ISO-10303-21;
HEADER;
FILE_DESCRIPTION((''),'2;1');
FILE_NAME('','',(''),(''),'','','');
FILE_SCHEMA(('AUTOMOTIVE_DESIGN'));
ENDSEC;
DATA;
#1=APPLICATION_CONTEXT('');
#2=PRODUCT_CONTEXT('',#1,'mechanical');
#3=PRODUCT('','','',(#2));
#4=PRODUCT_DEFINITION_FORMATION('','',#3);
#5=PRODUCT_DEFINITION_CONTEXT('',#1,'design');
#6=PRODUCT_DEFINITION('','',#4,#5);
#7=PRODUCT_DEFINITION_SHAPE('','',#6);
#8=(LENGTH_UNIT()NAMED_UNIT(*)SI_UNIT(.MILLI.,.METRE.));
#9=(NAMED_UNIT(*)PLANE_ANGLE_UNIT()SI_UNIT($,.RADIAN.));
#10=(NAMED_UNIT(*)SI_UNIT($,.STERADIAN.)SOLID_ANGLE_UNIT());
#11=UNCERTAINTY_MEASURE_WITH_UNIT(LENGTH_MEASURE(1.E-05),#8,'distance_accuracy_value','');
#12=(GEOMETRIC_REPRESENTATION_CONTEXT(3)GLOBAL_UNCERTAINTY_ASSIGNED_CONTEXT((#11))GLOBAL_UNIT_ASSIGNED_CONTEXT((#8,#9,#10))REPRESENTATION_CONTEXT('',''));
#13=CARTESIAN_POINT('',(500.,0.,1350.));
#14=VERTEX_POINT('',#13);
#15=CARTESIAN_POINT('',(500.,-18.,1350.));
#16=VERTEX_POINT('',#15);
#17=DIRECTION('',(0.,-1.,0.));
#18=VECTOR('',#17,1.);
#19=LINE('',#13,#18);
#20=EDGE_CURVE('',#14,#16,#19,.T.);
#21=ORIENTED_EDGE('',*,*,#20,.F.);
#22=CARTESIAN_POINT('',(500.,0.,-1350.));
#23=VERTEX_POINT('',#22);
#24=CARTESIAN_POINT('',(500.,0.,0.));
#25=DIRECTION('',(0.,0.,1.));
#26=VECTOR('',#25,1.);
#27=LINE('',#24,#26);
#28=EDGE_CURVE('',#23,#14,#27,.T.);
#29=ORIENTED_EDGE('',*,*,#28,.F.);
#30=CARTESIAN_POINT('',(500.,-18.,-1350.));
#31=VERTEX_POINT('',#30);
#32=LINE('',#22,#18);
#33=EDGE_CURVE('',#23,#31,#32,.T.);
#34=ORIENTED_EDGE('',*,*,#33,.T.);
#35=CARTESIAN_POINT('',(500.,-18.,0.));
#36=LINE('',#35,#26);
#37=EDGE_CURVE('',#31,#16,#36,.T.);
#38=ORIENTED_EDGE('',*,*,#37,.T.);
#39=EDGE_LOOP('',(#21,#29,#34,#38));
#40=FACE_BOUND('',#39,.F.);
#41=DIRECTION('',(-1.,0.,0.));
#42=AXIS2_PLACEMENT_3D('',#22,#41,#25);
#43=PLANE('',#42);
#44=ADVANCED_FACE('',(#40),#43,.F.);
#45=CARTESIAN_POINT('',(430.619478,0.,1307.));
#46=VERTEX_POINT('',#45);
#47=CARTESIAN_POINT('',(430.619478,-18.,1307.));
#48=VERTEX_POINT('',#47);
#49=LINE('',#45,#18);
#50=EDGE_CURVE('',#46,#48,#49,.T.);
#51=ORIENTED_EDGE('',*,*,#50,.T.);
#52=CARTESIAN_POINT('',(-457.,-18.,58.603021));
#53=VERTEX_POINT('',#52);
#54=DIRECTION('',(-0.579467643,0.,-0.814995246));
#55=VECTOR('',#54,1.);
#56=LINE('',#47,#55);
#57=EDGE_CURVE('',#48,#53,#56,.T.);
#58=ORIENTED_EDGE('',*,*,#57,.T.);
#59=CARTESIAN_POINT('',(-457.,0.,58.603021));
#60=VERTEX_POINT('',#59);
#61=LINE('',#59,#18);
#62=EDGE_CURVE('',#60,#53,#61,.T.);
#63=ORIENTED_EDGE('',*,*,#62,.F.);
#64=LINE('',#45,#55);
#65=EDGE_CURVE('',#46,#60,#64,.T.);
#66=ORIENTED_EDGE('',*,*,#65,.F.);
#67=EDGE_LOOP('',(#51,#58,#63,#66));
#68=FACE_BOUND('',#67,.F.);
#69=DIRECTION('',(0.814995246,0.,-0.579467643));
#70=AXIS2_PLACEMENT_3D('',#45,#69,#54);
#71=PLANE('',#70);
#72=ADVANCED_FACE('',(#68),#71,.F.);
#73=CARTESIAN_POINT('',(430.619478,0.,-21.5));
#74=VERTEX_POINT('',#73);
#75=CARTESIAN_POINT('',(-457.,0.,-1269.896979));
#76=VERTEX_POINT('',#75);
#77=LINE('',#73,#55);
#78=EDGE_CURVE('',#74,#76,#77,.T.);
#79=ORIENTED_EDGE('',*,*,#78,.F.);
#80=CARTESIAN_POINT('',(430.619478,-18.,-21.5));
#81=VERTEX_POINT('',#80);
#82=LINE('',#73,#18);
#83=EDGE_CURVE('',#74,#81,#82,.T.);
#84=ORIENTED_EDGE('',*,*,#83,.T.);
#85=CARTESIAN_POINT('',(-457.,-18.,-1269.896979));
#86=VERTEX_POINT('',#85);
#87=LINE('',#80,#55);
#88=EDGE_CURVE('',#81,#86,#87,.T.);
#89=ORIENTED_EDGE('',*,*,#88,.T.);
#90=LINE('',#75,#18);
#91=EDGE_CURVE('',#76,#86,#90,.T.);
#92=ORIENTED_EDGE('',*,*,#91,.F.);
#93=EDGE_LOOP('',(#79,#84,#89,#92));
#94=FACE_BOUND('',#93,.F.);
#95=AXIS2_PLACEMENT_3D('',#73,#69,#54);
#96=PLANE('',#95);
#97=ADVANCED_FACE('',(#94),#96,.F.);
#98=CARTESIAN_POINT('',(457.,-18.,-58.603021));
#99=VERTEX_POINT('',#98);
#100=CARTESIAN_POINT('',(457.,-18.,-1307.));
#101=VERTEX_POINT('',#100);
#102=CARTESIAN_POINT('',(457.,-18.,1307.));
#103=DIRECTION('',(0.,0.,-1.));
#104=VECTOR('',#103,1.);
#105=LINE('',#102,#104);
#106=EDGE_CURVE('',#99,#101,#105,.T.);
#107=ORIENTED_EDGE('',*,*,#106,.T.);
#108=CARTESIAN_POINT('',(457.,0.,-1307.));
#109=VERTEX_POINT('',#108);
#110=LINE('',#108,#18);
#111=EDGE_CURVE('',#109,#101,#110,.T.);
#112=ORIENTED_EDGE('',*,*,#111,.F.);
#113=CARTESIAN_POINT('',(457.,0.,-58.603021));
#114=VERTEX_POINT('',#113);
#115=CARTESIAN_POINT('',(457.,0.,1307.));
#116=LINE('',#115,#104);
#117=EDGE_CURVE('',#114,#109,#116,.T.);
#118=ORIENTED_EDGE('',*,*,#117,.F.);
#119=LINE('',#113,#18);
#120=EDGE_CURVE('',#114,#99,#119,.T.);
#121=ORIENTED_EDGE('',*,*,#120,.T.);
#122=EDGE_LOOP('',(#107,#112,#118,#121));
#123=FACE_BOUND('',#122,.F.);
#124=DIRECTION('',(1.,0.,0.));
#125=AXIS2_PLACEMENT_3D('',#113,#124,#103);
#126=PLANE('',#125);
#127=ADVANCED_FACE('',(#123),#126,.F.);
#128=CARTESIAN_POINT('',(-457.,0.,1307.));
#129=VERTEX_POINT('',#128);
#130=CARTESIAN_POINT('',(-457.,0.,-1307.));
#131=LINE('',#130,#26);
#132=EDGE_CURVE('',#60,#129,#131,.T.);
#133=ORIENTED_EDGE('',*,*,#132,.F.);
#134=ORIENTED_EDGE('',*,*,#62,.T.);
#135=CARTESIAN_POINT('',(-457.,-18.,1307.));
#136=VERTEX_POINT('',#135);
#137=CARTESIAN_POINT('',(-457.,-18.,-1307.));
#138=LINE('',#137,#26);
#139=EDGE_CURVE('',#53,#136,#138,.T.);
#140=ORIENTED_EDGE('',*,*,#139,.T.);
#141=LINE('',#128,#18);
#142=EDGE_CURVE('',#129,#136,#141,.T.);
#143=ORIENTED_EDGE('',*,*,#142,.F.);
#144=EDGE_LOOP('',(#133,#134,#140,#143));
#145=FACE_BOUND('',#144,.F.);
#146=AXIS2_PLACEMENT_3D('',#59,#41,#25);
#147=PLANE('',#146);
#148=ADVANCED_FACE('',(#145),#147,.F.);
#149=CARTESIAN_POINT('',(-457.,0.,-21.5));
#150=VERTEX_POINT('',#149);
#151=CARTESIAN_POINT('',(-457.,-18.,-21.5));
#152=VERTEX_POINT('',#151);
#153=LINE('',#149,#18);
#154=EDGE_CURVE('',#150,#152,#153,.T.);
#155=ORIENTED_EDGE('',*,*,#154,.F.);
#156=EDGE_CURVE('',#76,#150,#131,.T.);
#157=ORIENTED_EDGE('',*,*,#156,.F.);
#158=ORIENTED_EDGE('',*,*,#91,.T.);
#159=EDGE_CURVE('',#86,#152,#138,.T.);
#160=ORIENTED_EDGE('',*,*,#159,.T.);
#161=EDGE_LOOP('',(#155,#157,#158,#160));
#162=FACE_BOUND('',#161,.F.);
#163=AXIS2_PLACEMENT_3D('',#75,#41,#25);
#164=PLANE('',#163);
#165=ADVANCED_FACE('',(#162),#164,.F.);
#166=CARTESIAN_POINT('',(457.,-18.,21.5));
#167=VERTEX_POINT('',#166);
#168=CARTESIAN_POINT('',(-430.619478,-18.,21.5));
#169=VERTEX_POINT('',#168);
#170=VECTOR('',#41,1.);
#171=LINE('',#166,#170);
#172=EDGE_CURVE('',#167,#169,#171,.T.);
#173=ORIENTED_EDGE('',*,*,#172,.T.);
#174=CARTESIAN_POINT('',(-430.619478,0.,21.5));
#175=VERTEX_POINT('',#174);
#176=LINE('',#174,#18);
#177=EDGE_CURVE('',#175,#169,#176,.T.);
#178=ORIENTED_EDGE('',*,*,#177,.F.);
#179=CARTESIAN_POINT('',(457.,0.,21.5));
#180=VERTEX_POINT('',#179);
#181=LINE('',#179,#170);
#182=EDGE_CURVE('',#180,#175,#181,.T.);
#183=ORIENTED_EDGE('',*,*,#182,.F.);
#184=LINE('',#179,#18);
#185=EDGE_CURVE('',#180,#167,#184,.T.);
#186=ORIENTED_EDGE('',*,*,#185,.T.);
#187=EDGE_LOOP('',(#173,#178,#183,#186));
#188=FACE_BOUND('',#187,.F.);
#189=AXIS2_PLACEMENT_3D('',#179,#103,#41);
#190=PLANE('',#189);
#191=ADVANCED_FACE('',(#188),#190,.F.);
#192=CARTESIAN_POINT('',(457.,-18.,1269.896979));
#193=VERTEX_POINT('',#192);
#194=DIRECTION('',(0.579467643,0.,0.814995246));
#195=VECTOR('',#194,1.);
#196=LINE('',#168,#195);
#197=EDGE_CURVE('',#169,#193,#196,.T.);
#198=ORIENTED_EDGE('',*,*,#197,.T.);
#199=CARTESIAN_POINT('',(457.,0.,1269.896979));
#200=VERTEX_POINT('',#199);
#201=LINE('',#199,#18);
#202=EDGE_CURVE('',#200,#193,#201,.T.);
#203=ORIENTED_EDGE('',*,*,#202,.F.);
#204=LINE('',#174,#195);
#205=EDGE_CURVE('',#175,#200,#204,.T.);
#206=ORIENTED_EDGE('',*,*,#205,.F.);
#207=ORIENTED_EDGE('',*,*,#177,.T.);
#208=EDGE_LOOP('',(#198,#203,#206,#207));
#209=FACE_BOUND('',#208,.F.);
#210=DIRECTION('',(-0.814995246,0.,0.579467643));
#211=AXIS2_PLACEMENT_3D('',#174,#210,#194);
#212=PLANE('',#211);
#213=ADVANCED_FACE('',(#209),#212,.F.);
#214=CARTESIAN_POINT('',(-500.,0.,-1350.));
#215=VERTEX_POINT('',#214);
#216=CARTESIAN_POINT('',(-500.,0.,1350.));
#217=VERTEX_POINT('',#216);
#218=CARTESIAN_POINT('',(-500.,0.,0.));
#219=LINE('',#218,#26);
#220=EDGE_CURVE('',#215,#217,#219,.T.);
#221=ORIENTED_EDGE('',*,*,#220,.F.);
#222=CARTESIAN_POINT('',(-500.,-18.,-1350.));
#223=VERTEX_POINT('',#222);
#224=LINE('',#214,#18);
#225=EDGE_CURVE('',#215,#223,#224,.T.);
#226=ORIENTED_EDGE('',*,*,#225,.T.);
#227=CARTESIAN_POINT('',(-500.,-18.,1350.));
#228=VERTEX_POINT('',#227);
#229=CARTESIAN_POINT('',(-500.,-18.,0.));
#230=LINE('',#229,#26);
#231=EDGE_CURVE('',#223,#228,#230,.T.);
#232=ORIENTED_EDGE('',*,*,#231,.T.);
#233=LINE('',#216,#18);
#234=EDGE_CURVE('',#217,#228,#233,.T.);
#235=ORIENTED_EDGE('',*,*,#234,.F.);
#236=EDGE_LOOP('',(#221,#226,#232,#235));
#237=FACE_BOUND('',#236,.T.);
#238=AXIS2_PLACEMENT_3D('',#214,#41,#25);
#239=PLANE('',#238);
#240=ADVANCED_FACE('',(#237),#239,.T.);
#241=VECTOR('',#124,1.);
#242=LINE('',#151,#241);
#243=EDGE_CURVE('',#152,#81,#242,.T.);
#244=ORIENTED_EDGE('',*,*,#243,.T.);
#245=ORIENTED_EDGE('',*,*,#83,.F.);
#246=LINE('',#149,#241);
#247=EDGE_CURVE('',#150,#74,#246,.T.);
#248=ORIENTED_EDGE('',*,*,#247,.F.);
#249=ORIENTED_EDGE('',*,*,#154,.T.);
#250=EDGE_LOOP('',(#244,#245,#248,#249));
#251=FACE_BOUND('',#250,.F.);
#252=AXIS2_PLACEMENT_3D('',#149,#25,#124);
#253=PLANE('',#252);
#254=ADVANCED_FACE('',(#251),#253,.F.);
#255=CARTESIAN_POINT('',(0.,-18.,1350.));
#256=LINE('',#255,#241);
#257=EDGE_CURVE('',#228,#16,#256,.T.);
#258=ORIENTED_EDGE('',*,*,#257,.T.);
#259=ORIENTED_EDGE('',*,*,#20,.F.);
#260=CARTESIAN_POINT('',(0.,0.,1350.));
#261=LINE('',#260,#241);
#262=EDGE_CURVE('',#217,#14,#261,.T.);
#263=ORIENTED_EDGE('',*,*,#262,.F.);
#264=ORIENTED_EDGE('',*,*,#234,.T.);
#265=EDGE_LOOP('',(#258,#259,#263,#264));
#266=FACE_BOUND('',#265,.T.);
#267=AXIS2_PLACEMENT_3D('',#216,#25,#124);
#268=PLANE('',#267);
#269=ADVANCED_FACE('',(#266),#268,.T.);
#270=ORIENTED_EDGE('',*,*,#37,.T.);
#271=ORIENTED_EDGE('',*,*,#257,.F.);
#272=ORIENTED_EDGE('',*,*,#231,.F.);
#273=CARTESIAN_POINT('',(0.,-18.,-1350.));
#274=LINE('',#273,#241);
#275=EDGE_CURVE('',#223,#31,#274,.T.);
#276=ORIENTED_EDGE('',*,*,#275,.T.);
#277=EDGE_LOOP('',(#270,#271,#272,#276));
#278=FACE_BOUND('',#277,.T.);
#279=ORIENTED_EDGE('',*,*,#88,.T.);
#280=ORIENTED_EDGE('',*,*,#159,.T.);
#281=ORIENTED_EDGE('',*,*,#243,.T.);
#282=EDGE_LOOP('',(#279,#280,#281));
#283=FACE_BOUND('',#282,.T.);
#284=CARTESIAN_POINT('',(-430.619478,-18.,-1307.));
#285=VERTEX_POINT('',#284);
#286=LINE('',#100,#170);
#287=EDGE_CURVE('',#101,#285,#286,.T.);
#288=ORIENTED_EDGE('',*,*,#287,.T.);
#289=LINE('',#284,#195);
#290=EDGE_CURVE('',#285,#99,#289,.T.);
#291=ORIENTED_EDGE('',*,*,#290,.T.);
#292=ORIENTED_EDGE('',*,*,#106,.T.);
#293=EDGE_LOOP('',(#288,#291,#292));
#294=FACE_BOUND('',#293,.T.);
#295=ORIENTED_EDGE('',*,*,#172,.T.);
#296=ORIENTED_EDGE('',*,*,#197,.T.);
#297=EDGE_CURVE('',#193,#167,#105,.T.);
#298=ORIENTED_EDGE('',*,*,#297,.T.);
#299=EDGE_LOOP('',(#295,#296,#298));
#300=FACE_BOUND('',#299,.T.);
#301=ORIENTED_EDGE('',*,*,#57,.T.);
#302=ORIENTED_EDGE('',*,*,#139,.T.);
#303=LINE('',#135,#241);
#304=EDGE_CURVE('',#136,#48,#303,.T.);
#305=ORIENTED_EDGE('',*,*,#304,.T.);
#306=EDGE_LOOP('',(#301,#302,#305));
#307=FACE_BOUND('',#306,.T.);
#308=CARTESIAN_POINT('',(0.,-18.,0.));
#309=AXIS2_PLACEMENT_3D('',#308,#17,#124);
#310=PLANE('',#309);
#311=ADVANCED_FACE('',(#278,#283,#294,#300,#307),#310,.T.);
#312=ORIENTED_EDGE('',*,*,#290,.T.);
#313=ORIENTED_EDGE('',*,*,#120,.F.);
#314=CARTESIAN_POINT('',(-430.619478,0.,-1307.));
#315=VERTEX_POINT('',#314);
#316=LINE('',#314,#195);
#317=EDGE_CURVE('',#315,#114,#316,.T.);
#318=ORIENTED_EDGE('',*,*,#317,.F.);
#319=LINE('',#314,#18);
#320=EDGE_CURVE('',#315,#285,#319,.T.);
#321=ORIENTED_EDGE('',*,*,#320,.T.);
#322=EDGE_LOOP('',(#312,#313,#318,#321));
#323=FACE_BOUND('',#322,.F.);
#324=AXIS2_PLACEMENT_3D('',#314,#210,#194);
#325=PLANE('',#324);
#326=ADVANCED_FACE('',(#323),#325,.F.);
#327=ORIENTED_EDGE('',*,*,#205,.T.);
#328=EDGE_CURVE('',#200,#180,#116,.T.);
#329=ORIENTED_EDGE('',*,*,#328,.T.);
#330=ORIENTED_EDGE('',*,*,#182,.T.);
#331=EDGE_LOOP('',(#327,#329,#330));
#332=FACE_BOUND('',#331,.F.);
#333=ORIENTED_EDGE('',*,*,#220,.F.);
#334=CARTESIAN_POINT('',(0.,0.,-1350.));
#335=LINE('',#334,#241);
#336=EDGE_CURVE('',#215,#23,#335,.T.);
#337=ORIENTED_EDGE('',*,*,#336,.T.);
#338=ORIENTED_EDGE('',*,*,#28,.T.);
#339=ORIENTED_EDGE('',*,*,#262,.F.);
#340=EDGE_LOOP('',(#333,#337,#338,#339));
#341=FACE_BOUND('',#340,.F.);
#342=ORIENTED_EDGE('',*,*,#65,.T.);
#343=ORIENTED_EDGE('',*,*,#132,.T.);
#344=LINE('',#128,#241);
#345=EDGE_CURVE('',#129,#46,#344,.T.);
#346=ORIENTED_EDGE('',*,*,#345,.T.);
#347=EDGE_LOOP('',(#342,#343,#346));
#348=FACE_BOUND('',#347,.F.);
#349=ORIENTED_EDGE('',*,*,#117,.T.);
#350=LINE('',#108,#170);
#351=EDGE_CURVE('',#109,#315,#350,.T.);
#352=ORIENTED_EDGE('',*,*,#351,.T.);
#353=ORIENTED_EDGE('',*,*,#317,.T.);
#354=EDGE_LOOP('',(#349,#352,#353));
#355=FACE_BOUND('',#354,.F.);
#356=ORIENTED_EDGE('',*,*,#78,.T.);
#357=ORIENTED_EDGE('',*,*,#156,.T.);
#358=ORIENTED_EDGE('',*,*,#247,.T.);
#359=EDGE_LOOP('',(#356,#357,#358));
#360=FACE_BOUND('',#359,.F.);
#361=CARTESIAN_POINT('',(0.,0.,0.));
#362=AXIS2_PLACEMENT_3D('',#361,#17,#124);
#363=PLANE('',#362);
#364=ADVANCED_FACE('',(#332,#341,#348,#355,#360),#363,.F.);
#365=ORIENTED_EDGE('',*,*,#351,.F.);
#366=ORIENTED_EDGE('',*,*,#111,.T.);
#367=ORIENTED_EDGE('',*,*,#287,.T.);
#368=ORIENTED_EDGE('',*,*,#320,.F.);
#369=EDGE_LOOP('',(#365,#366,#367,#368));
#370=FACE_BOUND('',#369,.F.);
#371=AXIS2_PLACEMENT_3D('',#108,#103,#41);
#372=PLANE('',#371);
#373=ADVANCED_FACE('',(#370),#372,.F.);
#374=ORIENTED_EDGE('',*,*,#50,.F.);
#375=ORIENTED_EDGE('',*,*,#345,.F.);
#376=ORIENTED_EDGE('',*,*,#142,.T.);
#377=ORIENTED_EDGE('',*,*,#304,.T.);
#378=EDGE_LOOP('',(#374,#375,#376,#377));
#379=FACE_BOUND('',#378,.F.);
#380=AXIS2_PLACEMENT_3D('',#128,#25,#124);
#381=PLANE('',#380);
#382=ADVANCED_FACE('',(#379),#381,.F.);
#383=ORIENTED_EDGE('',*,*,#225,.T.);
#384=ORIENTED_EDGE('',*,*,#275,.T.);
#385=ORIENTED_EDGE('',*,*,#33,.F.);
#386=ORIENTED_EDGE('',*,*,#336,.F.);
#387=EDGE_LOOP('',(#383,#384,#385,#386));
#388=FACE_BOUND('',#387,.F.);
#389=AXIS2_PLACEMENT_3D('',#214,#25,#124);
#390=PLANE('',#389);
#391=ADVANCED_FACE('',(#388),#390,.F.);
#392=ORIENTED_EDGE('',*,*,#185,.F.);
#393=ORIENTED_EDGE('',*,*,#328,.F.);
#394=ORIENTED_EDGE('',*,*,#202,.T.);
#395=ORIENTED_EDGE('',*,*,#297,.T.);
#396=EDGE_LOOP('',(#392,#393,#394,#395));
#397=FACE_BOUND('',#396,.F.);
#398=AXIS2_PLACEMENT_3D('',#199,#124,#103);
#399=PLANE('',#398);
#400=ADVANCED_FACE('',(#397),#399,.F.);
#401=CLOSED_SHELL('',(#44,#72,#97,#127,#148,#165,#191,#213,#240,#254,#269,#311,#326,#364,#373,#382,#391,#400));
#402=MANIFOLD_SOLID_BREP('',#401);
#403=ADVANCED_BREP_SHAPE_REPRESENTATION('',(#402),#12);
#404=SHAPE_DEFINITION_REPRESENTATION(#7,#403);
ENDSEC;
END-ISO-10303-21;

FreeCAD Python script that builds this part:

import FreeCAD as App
import Part
import Sketcher

V = App.Vector
Q = App.Units.Quantity


def add_polygon(sketch, points):
    """Adds a closed chain of lines whose ends are joined by coincident constraints."""
    first, n = sketch.GeometryCount, len(points)
    for a, b in zip(points, points[1:] + points[:1]):
        sketch.addGeometry(Part.LineSegment(App.Vector(*a, 0), App.Vector(*b, 0)), False)
    for i in range(n):
        sketch.addConstraint(Sketcher.Constraint("Coincident", first + i, 2, first + (i + 1) % n, 1))

doc = App.newDocument("Part")
body = doc.addObject("PartDesign::Body", "Body")

# Sketch on XZ plane
sketch1 = body.newObject("Sketcher::SketchObject", "Sketch")
sketch1.AttachmentSupport = (doc.getObject("XZ_Plane"), [""])
sketch1.MapMode = "FlatFace"
add_polygon(sketch1, [(-500, 1350), (-500, -1350), (500, -1350), (500, 1350)])  # lines 0-3
add_polygon(sketch1, [(-457, -1270), (-457, -22), (431, -22)])  # lines 4-6
add_polygon(sketch1, [(-457, 59), (-457, 1307), (431, 1307)])  # lines 7-9
add_polygon(sketch1, [(457, 1270), (457, 22), (-431, 22)])  # lines 10-12
add_polygon(sketch1, [(457, -59), (457, -1307), (-431, -1307)])  # lines 13-15
sketch1.addConstraint(Sketcher.Constraint("Vertical", 0))
sketch1.addConstraint(Sketcher.Constraint("Horizontal", 1))
sketch1.addConstraint(Sketcher.Constraint("Vertical", 2))
sketch1.addConstraint(Sketcher.Constraint("Horizontal", 3))
sketch1.addConstraint(Sketcher.Constraint("Vertical", 4))
sketch1.addConstraint(Sketcher.Constraint("Horizontal", 5))
sketch1.addConstraint(Sketcher.Constraint("Vertical", 7))
sketch1.addConstraint(Sketcher.Constraint("Horizontal", 8))
sketch1.addConstraint(Sketcher.Constraint("Vertical", 10))
sketch1.addConstraint(Sketcher.Constraint("Horizontal", 11))
sketch1.addConstraint(Sketcher.Constraint("Vertical", 13))
sketch1.addConstraint(Sketcher.Constraint("Horizontal", 14))
sketch1.addConstraint(Sketcher.Constraint("Symmetric", 0, 2, 2, 2, -1, 1))
sketch1.addConstraint(Sketcher.Constraint("Symmetric", 4, 2, 10, 2, -1, 1))
sketch1.addConstraint(Sketcher.Constraint("Symmetric", 7, 2, 13, 2, -1, 1))
sketch1.addConstraint(Sketcher.Constraint("Parallel", 6, 9))
sketch1.addConstraint(Sketcher.Constraint("Parallel", 9, 12))
sketch1.addConstraint(Sketcher.Constraint("Parallel", 12, 15))
sketch1.addConstraint(Sketcher.Constraint("Vertical", 6, 2, 7, 2))
sketch1.addConstraint(Sketcher.Constraint("Vertical", 5, 2, 8, 2))
sketch1.addConstraint(Sketcher.Constraint("Vertical", 11, 2, 14, 2))
sketch1.addConstraint(Sketcher.Constraint("Equal", 8, 11))
sketch1.addConstraint(Sketcher.Constraint("DistanceX", 1, 1, 1, 2, Q("1000 mm")))
sketch1.addConstraint(Sketcher.Constraint("DistanceY", 0, 2, 0, 1, Q("2700 mm")))
sketch1.addConstraint(Sketcher.Constraint("DistanceX", 4, 2, -1, 1, Q("457 mm")))
sketch1.addConstraint(Sketcher.Constraint("DistanceY", -1, 1, 7, 2, Q("1307 mm")))
sketch1.addConstraint(Sketcher.Constraint("DistanceY", 5, 2, 10, 2, Q("43 mm")))
sketch1.addConstraint(Sketcher.Constraint("DistanceX", 5, 1, 5, 2, Q("887.619478 mm")))
sketch1.addConstraint(Sketcher.Constraint("DistanceY", 4, 1, 4, 2, Q("1248.396979 mm")))
pad1 = body.newObject("PartDesign::Pad", "Pad")
pad1.Profile = sketch1
pad1.Length = 18

doc.recompute()
